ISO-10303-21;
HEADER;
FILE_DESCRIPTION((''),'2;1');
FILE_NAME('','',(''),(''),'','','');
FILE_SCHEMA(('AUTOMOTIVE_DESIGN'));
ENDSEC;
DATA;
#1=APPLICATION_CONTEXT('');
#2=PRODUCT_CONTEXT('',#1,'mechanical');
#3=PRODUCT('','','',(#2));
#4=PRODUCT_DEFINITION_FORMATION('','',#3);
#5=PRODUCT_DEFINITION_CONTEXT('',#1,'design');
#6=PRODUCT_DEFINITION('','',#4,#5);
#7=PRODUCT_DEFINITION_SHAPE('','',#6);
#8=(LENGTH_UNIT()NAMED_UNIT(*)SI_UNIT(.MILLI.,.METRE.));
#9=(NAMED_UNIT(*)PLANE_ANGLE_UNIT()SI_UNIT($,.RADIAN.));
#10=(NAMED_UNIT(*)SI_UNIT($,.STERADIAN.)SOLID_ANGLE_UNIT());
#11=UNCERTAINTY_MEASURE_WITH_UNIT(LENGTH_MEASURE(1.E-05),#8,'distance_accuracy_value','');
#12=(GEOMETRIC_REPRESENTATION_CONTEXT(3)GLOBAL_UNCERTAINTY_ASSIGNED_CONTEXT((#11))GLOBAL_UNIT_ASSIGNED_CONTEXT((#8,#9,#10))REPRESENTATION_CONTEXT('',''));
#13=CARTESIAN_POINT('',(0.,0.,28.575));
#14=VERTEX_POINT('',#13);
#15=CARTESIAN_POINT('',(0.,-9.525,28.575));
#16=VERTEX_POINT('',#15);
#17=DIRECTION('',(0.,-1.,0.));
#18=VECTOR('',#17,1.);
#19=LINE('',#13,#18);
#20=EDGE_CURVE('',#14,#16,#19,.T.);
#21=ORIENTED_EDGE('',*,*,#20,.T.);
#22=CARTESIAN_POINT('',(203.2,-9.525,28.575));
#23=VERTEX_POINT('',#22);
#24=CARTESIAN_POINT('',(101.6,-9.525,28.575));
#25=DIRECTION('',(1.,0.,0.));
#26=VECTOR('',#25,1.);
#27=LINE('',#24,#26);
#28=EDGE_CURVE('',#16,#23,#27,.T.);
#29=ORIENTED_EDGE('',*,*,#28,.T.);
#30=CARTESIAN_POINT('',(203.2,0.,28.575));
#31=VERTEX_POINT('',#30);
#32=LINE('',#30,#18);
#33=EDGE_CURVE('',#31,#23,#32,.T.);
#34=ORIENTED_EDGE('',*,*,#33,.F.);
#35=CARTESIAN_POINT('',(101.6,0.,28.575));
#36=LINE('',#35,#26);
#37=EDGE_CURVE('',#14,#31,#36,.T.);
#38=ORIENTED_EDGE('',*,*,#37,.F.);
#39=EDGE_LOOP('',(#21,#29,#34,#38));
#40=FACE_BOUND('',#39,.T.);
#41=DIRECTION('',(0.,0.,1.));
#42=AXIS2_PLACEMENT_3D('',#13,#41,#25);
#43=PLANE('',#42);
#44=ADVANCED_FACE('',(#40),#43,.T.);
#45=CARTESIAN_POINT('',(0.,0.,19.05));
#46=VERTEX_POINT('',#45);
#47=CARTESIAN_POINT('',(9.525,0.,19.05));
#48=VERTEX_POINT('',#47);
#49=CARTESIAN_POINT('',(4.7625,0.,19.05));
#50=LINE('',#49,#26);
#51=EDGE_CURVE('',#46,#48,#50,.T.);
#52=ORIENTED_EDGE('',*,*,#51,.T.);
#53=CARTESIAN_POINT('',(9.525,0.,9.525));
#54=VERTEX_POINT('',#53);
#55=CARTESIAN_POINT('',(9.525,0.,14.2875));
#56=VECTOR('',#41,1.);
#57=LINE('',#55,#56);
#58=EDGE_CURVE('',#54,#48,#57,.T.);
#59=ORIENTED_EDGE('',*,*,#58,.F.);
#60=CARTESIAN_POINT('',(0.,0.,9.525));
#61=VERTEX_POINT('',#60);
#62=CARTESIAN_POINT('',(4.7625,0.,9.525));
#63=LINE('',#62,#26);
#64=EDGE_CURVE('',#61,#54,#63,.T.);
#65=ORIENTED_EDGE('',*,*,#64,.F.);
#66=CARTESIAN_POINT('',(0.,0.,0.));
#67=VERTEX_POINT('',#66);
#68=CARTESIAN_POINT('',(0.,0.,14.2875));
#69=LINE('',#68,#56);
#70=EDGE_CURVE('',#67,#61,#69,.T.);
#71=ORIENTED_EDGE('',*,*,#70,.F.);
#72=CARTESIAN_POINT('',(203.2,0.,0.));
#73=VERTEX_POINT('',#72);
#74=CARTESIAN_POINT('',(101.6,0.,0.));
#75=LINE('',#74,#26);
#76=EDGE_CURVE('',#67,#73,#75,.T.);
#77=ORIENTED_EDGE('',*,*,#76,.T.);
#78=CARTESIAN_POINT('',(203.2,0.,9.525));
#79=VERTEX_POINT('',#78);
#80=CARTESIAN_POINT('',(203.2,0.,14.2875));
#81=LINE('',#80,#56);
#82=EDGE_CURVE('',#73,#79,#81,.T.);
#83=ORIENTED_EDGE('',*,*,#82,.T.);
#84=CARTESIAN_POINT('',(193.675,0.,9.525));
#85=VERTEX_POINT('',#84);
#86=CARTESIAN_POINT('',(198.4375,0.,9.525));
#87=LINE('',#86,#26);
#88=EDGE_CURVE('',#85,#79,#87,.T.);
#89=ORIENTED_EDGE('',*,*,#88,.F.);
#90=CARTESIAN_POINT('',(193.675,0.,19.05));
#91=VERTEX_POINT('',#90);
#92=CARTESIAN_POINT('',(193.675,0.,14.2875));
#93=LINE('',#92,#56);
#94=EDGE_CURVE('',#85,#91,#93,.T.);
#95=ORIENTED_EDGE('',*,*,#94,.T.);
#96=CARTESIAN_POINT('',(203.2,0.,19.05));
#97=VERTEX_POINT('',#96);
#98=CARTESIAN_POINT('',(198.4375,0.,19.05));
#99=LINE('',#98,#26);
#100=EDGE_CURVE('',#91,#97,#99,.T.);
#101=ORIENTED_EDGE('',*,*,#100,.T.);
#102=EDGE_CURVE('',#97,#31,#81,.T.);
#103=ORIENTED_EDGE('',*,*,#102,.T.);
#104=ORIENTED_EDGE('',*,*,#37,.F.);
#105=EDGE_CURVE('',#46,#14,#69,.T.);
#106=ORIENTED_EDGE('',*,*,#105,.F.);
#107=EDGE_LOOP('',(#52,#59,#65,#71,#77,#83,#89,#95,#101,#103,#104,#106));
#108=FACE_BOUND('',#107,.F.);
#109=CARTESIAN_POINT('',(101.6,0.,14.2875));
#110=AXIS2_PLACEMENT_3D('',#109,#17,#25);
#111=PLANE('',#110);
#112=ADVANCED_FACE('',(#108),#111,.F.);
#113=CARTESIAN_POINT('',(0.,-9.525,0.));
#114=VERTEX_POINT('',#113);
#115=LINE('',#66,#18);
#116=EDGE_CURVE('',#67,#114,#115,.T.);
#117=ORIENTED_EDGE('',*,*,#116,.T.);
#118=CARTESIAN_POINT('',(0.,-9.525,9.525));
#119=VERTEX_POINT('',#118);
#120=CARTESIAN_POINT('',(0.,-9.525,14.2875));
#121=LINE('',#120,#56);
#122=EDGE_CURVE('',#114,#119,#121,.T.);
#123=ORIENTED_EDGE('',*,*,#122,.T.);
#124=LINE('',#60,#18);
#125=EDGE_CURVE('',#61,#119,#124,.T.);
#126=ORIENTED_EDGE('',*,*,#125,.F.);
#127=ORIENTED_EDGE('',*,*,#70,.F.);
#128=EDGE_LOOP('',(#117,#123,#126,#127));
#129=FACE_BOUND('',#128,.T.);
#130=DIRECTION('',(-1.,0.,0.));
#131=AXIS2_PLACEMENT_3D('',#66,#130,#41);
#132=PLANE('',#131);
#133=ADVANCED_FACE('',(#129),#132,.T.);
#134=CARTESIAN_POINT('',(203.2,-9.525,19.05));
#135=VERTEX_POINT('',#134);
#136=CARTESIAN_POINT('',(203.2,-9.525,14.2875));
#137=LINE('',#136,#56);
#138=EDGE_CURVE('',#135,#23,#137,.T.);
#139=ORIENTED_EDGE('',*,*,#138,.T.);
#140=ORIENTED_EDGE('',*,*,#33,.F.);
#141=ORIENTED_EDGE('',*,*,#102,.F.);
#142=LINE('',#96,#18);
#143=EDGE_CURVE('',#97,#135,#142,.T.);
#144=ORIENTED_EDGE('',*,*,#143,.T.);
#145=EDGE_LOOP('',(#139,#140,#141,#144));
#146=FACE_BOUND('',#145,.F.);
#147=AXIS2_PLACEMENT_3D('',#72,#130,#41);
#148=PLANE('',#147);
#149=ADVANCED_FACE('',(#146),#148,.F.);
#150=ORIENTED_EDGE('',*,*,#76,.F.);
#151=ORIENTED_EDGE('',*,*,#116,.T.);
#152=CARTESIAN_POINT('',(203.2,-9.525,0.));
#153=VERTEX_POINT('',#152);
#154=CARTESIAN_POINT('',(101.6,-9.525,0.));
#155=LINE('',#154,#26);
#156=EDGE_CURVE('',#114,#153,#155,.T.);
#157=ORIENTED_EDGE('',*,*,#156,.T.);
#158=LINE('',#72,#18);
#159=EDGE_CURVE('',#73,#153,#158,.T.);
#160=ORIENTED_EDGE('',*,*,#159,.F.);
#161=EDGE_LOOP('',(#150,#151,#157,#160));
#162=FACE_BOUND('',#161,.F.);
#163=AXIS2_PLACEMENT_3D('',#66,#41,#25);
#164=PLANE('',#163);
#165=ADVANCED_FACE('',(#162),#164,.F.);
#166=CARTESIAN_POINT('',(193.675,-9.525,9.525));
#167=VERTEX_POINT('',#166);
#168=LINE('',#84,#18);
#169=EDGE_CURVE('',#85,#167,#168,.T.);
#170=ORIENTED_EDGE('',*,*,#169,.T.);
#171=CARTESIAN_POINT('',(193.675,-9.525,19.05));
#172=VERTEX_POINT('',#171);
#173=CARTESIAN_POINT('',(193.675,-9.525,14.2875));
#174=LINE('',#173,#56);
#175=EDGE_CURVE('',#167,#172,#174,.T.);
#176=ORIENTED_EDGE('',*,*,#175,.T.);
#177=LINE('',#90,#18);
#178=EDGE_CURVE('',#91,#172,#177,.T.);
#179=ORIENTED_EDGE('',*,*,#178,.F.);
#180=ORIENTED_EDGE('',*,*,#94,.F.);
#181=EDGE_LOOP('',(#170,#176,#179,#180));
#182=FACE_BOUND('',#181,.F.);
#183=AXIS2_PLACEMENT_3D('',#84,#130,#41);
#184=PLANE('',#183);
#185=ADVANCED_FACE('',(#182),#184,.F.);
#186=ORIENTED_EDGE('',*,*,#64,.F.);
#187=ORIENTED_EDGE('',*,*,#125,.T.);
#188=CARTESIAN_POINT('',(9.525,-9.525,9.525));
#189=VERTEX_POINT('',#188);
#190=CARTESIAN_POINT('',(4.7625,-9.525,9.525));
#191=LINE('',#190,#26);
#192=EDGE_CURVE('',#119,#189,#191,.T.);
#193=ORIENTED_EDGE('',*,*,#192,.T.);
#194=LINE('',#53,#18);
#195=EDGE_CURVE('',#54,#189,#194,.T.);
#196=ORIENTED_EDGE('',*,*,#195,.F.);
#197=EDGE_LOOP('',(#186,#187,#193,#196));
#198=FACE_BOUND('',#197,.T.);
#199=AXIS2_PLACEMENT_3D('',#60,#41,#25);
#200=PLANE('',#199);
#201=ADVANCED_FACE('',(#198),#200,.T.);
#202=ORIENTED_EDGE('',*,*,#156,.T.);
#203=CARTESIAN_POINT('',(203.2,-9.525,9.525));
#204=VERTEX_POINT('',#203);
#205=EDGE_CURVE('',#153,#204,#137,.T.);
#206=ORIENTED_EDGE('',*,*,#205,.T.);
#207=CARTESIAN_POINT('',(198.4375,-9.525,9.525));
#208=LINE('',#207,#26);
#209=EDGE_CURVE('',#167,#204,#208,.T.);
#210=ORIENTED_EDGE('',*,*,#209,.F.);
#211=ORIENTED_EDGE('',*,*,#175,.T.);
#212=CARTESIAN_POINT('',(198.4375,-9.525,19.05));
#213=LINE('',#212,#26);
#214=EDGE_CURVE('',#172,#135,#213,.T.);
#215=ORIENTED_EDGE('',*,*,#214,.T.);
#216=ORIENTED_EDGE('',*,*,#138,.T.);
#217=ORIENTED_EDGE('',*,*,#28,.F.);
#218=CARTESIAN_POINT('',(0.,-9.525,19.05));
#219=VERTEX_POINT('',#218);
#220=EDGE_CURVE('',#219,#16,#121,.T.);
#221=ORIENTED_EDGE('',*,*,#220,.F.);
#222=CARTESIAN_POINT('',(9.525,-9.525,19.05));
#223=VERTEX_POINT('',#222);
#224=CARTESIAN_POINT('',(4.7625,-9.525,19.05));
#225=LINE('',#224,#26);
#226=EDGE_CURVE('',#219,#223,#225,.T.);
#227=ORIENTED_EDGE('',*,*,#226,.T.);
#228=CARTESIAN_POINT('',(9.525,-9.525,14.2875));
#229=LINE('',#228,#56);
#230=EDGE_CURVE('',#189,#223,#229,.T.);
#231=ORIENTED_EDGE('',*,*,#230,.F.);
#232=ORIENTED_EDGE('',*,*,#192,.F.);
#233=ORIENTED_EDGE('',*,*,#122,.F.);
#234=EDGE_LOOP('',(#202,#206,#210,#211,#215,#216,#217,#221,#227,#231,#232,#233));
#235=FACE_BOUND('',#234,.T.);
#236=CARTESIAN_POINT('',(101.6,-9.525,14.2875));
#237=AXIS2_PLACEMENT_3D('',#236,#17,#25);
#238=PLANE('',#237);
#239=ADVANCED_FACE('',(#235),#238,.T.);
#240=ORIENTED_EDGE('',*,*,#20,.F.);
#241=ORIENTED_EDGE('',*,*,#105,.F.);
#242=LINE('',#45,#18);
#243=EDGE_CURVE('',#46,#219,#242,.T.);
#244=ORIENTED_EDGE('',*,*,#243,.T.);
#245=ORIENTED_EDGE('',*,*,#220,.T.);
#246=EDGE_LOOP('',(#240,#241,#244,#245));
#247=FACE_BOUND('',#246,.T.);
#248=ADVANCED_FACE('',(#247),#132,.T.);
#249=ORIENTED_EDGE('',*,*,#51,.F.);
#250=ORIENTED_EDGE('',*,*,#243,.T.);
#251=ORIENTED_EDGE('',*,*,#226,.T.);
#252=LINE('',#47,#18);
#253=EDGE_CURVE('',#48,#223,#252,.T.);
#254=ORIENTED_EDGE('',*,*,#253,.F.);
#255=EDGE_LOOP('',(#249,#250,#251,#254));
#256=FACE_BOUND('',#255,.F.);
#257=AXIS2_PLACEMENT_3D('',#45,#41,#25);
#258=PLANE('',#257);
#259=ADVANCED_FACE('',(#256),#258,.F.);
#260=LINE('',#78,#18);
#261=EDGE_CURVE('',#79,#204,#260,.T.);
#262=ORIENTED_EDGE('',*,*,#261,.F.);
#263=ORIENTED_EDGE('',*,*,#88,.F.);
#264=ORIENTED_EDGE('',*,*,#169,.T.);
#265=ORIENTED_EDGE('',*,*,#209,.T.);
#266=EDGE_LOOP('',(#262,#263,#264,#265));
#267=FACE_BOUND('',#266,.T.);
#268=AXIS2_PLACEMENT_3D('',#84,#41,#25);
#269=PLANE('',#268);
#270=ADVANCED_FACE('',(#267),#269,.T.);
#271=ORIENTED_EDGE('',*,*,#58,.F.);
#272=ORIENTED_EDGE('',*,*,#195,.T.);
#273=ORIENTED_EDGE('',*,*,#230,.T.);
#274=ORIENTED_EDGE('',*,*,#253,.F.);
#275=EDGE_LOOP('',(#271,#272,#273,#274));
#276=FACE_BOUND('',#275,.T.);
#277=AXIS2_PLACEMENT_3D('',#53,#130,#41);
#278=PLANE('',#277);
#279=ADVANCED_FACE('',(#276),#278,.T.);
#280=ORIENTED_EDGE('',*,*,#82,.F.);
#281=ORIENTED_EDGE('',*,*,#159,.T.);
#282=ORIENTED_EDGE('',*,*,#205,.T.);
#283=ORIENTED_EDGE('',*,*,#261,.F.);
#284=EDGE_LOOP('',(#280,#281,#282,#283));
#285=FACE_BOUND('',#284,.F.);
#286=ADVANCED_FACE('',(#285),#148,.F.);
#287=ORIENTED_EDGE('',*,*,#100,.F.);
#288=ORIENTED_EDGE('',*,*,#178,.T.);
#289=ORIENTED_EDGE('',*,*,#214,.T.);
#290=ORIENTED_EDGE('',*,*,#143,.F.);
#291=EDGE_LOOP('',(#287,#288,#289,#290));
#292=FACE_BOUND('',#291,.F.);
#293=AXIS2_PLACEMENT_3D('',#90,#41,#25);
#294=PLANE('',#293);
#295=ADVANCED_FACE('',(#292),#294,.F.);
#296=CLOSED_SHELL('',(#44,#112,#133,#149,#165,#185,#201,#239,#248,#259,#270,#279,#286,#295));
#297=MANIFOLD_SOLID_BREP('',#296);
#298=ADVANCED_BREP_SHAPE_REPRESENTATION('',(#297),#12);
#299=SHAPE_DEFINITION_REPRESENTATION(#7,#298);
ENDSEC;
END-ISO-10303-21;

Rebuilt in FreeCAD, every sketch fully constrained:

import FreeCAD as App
import Part
import Sketcher
Q = App.Units.Quantity

doc = App.newDocument("Part")
body = doc.addObject("PartDesign::Body", "Body")

# Sketch on XZ plane
sketch1 = doc.addObject("Sketcher::SketchObject", "Sketch")
body.addObject(sketch1)
sketch1.AttachmentSupport = (doc.XZ_Plane, [""])
sketch1.MapMode = "FlatFace"
sketch1.addGeometry([
    Part.LineSegment(App.Vector(0, 28.575, 0), App.Vector(0, 0, 0)),
    Part.LineSegment(App.Vector(0, 0, 0), App.Vector(203.2, 0, 0)),
    Part.LineSegment(App.Vector(203.2, 0, 0), App.Vector(203.2, 28.575, 0)),
    Part.LineSegment(App.Vector(203.2, 28.575, 0), App.Vector(0, 28.575, 0)),
], False)
sketch1.addConstraint([
    Sketcher.Constraint("Coincident", 0, 2, 1, 1),
    Sketcher.Constraint("Coincident", 1, 2, 2, 1),
    Sketcher.Constraint("Coincident", 2, 2, 3, 1),
    Sketcher.Constraint("Coincident", 3, 2, 0, 1),
    Sketcher.Constraint("Vertical", 0),
    Sketcher.Constraint("Horizontal", 1),
    Sketcher.Constraint("Vertical", 2),
    Sketcher.Constraint("Horizontal", 3),
    Sketcher.Constraint("Coincident", 0, 2, -1, 1),
    Sketcher.Constraint("DistanceX", 1, 1, 1, 2, Q("8 in")),
    Sketcher.Constraint("DistanceY", 0, 2, 0, 1, Q("1.125 in")),
])
pad1 = doc.addObject("PartDesign::Pad", "Pad")
body.addObject(pad1)
pad1.Profile = sketch1
pad1.Length = Q("0.375 in")

# Sketch on XZ plane
sketch2 = doc.addObject("Sketcher::SketchObject", "Sketch001")
body.addObject(sketch2)
sketch2.AttachmentSupport = (doc.XZ_Plane, [""])
sketch2.MapMode = "FlatFace"
sketch2.addGeometry([
    Part.LineSegment(App.Vector(0, 19.05, 0), App.Vector(0, 9.525, 0)),  # 0
    Part.LineSegment(App.Vector(0, 9.525, 0), App.Vector(9.525, 9.525, 0)),  # 1
    Part.LineSegment(App.Vector(9.525, 9.525, 0), App.Vector(9.525, 19.05, 0)),  # 2
    Part.LineSegment(App.Vector(9.525, 19.05, 0), App.Vector(0, 19.05, 0)),  # 3
    Part.LineSegment(App.Vector(193.675, 19.05, 0), App.Vector(193.675, 9.525, 0)),  # 4
    Part.LineSegment(App.Vector(193.675, 9.525, 0), App.Vector(203.2, 9.525, 0)),  # 5
    Part.LineSegment(App.Vector(203.2, 9.525, 0), App.Vector(203.2, 19.05, 0)),  # 6
    Part.LineSegment(App.Vector(203.2, 19.05, 0), App.Vector(193.675, 19.05, 0)),  # 7
], False)
sketch2.addConstraint([
    Sketcher.Constraint("Coincident", 0, 2, 1, 1),
    Sketcher.Constraint("Coincident", 1, 2, 2, 1),
    Sketcher.Constraint("Coincident", 2, 2, 3, 1),
    Sketcher.Constraint("Coincident", 3, 2, 0, 1),
    Sketcher.Constraint("Coincident", 4, 2, 5, 1),
    Sketcher.Constraint("Coincident", 5, 2, 6, 1),
    Sketcher.Constraint("Coincident", 6, 2, 7, 1),
    Sketcher.Constraint("Coincident", 7, 2, 4, 1),
    Sketcher.Constraint("Vertical", 0),
    Sketcher.Constraint("Horizontal", 1),
    Sketcher.Constraint("Vertical", 2),
    Sketcher.Constraint("Horizontal", 3),
    Sketcher.Constraint("Vertical", 4),
    Sketcher.Constraint("Horizontal", 5),
    Sketcher.Constraint("Vertical", 6),
    Sketcher.Constraint("Horizontal", 7),
    Sketcher.Constraint("PointOnObject", 0, 2, -2),
    Sketcher.Constraint("Horizontal", 1, 2, 4, 2),
    Sketcher.Constraint("Horizontal", 3, 2, 6, 2),
    Sketcher.Constraint("Equal", 3, 5),
    Sketcher.Constraint("Equal", 7, 0),
    Sketcher.Constraint("DistanceX", -1, 1, 5, 2, Q("8 in")),
    Sketcher.Constraint("DistanceX", 1, 1, 1, 2, Q("0.375 in")),
    Sketcher.Constraint("DistanceY", -1, 1, 2, 2, Q("0.75 in")),
])
pocket1 = doc.addObject("PartDesign::Pocket", "Pocket")
body.addObject(pocket1)
pocket1.Profile = sketch2
pocket1.Type = "ThroughAll"
pocket1.Reversed = True

doc.recompute()
